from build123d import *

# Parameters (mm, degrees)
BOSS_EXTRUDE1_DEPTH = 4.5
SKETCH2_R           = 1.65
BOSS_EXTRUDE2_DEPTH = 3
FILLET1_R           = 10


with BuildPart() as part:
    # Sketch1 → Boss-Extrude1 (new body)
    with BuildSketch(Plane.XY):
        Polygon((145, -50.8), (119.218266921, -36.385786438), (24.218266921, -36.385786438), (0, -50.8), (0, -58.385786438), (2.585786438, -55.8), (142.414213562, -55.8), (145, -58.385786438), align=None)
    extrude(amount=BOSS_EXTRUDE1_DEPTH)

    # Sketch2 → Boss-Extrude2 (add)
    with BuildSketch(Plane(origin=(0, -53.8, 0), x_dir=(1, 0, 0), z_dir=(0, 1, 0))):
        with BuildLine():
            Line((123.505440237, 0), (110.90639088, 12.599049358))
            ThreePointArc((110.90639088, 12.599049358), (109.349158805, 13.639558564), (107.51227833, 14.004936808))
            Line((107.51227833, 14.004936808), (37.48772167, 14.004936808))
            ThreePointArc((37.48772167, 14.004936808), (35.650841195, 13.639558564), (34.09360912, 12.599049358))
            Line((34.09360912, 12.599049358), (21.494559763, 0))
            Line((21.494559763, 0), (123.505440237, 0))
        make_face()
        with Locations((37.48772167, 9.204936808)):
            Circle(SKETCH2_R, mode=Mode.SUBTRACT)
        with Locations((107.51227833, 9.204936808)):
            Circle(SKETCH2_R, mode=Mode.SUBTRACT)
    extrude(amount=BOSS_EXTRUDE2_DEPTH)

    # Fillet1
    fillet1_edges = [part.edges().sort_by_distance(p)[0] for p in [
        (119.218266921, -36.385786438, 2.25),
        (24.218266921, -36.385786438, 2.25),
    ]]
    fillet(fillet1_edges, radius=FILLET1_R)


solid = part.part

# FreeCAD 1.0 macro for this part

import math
import FreeCAD as App
import Part
import Sketcher
from FreeCAD import Vector


def edges_at(feature, points):
    """Names of the edges that pass closest to the given points."""
    edges = feature.Shape.Edges
    near = lambda p: min(range(len(edges)), key=lambda i: edges[i].distToShape(Part.Vertex(*p))[0])
    return sorted({f"Edge{near(p) + 1}" for p in points})


def add_polygon(sketch, points):
    """Adds a closed chain of lines whose ends are joined by coincident constraints."""
    first, n = sketch.GeometryCount, len(points)
    for a, b in zip(points, points[1:] + points[:1]):
        sketch.addGeometry(Part.LineSegment(App.Vector(*a, 0), App.Vector(*b, 0)), False)
    for i in range(n):
        sketch.addConstraint(Sketcher.Constraint("Coincident", first + i, 2, first + (i + 1) % n, 1))

doc = App.newDocument("Part")
body = doc.addObject("PartDesign::Body", "Body")

# Sketch on XY plane
sketch1 = body.newObject("Sketcher::SketchObject", "Sketch")
sketch1.AttachmentSupport = (doc.getObject("XY_Plane"), [""])
sketch1.MapMode = "FlatFace"
add_polygon(sketch1, [(145, -50.8), (119.2, -36.4), (24.2, -36.4), (0, -50.8), (0, -58.4), (2.6, -55.8), (142.4, -55.8), (145, -58.4)])  # lines 0-7
sketch1.addConstraint([
    Sketcher.Constraint("Horizontal", 1),
    Sketcher.Constraint("Vertical", 3),
    Sketcher.Constraint("Horizontal", 5),
    Sketcher.Constraint("Vertical", 7),
    Sketcher.Constraint("PointOnObject", 2, 2, -2),
    Sketcher.Constraint("Perpendicular", 4, 6),
    Sketcher.Constraint("Horizontal", 3, 2, 6, 2),
    Sketcher.Constraint("Horizontal", 2, 2, 7, 2),
    Sketcher.Constraint("Equal", 4, 6),
    Sketcher.Constraint("DistanceX", 1, 2, 1, 1, 95.0),
    Sketcher.Constraint("DistanceX", -1, 1, 6, 2, 145.0),
    Sketcher.Constraint("DistanceY", 3, 2, 1, 2, 22.0),
    Sketcher.Constraint("DistanceY", 4, 2, 2, 2, 5.0),
    Sketcher.Constraint("DistanceY", 2, 2, -1, 1, 50.8),
    Sketcher.Constraint("DistanceX", 5, 1, 5, 2, 139.828427),
    Sketcher.Constraint("DistanceX", 4, 2, 1, 2, 21.63248),
])
pad1 = body.newObject("PartDesign::Pad", "Pad")
pad1.Profile = sketch1
pad1.Length = 4.5

# Sketch on XZ plane
sketch2 = body.newObject("Sketcher::SketchObject", "Sketch001")
sketch2.AttachmentSupport = (doc.getObject("XZ_Plane"), [""])
sketch2.MapMode = "FlatFace"
sketch2.AttachmentOffset = App.Placement(Vector(0, 0, 53.8), App.Rotation())
sketch2.addGeometry([
    Part.LineSegment(Vector(123.5, 0, 0), Vector(110.9, -12.6, 0)),  # 0
    Part.ArcOfCircle(Part.Circle(Vector(107.5, -9.2, 0), Vector(0, 0, 1), 4.8), math.radians(-90), math.radians(-45)),  # 1
    Part.LineSegment(Vector(107.5, -14, 0), Vector(37.5, -14, 0)),  # 2
    Part.ArcOfCircle(Part.Circle(Vector(37.5, -9.2, 0), Vector(0, 0, 1), 4.8), math.radians(-135), math.radians(-90)),  # 3
    Part.LineSegment(Vector(34.1, -12.6, 0), Vector(21.5, 0, 0)),  # 4
    Part.LineSegment(Vector(21.5, 0, 0), Vector(123.5, 0, 0)),  # 5
    Part.Circle(Vector(37.5, -9.2, 0), Vector(0, 0, 1), 1.6),  # 6
    Part.Circle(Vector(107.5, -9.2, 0), Vector(0, 0, 1), 1.6),  # 7
], False)
sketch2.addConstraint([
    Sketcher.Constraint("Tangent", 0, 2, 1, 2),
    Sketcher.Constraint("Tangent", 1, 1, 2, 1),
    Sketcher.Constraint("Tangent", 2, 2, 3, 2),
    Sketcher.Constraint("Tangent", 3, 1, 4, 1),
    Sketcher.Constraint("Coincident", 4, 2, 5, 1),
    Sketcher.Constraint("Coincident", 5, 2, 0, 1),
    Sketcher.Constraint("Horizontal", 2),
    Sketcher.Constraint("Horizontal", 5),
    Sketcher.Constraint("Coincident", 6, 3, 3, 3),
    Sketcher.Constraint("Coincident", 7, 3, 1, 3),
    Sketcher.Constraint("Equal", 1, 3),
    Sketcher.Constraint("Equal", 6, 7),
    Sketcher.Constraint("PointOnObject", 4, 2, -1),
    Sketcher.Constraint("Perpendicular", 0, 4),
    Sketcher.Constraint("Horizontal", 0, 2, 3, 1),
    Sketcher.Constraint("Diameter", 6, 3.3),
    Sketcher.Constraint("Radius", 1, 4.8),
    Sketcher.Constraint("DistanceX", 5, 1, 5, 2, 102.01088),
    Sketcher.Constraint("DistanceX", 2, 2, 2, 1, 70.024557),
    Sketcher.Constraint("DistanceX", -1, 1, 1, 3, 107.512278),
])
pad2 = body.newObject("PartDesign::Pad", "Pad001")
pad2.Profile = sketch2
pad2.Length = 3
pad2.Reversed = True
doc.recompute()

fillet = body.newObject("PartDesign::Fillet", "Fillet")
fillet.Base = (pad2, edges_at(pad2, [(119.218, -36.386, 2.25), (24.218, -36.386, 2.25)]))
fillet.Radius = 10

doc.recompute()
